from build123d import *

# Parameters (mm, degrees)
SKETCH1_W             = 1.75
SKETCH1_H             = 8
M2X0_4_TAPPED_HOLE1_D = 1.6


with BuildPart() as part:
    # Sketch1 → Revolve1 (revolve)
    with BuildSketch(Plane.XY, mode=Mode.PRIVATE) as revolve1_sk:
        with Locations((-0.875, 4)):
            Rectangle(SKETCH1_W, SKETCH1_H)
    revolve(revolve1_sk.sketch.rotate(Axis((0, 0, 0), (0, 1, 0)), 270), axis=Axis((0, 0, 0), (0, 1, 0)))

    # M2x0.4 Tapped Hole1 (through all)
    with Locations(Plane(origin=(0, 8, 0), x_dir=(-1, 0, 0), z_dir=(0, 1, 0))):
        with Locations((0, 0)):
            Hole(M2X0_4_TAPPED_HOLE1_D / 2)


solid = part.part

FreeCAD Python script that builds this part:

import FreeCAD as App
import Part
import Sketcher
Q = App.Units.Quantity

doc = App.newDocument("Part")
body = doc.addObject("PartDesign::Body", "Body")

# Sketch on XY plane
sketch1 = doc.addObject("Sketcher::SketchObject", "Sketch")
body.addObject(sketch1)
sketch1.AttachmentSupport = (doc.XY_Plane, [""])
sketch1.MapMode = "FlatFace"
sketch1.addGeometry([
    Part.LineSegment(App.Vector(-1.8, 8, 0), App.Vector(-1.8, 0, 0)),
    Part.LineSegment(App.Vector(-1.8, 0, 0), App.Vector(0, 0, 0)),
    Part.LineSegment(App.Vector(0, 0, 0), App.Vector(0, 8, 0)),
    Part.LineSegment(App.Vector(0, 8, 0), App.Vector(-1.8, 8, 0)),
], False)
sketch1.addConstraint([
    Sketcher.Constraint("Coincident", 0, 2, 1, 1),
    Sketcher.Constraint("Coincident", 1, 2, 2, 1),
    Sketcher.Constraint("Coincident", 2, 2, 3, 1),
    Sketcher.Constraint("Coincident", 3, 2, 0, 1),
    Sketcher.Constraint("Vertical", 0),
    Sketcher.Constraint("Horizontal", 1),
    Sketcher.Constraint("Vertical", 2),
    Sketcher.Constraint("Horizontal", 3),
    Sketcher.Constraint("Coincident", 1, 2, -1, 1),
    Sketcher.Constraint("DistanceY", 0, 2, 0, 1, Q("8 mm")),
    Sketcher.Constraint("DistanceX", 1, 1, 1, 2, Q("1.75 mm")),
])
revolution = doc.addObject("PartDesign::Revolution", "Revolution")
body.addObject(revolution)
revolution.Profile = sketch1
revolution.ReferenceAxis = (sketch1, ["V_Axis"])
revolution.Angle = 360

# Sketch on XZ plane
sketch2 = doc.addObject("Sketcher::SketchObject", "Sketch001")
body.addObject(sketch2)
sketch2.AttachmentSupport = (doc.XZ_Plane, [""])
sketch2.MapMode = "FlatFace"
sketch2.AttachmentOffset = App.Placement(App.Vector(0, 0, -8), App.Rotation())
sketch2.addGeometry(Part.Circle(App.Vector(0, 0, 0), App.Vector(0, 0, 1), 0.8), False)
sketch2.addConstraint([
    Sketcher.Constraint("Coincident", 0, 3, -1, 1),
    Sketcher.Constraint("Diameter", 0, Q("1.6 mm")),
])
doc.recompute()
hole = doc.addObject("PartDesign::Hole", "Hole")
body.addObject(hole)
hole.Profile = sketch2
hole.ThreadType = "None"
hole.Diameter = 1.6
hole.DepthType = "ThroughAll"
hole.Reversed = True

doc.recompute()
